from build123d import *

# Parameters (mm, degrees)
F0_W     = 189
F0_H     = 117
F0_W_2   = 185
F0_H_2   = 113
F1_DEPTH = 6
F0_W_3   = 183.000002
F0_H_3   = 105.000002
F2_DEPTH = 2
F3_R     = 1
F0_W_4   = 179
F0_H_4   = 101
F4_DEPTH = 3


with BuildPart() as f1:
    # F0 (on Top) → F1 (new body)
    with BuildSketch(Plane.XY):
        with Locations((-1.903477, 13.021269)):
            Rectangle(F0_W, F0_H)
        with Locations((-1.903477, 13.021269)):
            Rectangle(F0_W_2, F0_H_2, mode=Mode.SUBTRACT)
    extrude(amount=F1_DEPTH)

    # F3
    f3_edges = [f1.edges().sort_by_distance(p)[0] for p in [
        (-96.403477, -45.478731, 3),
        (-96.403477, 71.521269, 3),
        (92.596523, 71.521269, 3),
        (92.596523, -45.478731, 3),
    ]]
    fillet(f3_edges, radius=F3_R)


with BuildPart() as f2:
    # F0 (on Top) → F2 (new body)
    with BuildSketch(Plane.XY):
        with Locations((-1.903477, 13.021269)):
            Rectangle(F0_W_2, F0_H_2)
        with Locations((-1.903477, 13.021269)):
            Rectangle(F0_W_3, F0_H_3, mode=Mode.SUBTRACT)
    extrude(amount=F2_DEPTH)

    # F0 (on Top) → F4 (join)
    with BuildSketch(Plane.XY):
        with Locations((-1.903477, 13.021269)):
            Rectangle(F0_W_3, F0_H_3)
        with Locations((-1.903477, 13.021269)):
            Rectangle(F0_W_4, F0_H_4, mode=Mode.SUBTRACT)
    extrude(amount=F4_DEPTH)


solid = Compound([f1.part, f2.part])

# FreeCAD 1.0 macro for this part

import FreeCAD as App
import Part
import Sketcher


def edges_at(feature, points):
    """Names of the edges that pass closest to the given points."""
    edges = feature.Shape.Edges
    near = lambda p: min(range(len(edges)), key=lambda i: edges[i].distToShape(Part.Vertex(*p))[0])
    return sorted({f"Edge{near(p) + 1}" for p in points})


def add_polygon(sketch, points):
    """Adds a closed chain of lines whose ends are joined by coincident constraints."""
    first, n = sketch.GeometryCount, len(points)
    for a, b in zip(points, points[1:] + points[:1]):
        sketch.addGeometry(Part.LineSegment(App.Vector(*a, 0), App.Vector(*b, 0)), False)
    for i in range(n):
        sketch.addConstraint(Sketcher.Constraint("Coincident", first + i, 2, first + (i + 1) % n, 1))

doc = App.newDocument("Part")
body = doc.addObject("PartDesign::Body", "Body")

# Sketch on XY plane
sketch1 = doc.addObject("Sketcher::SketchObject", "Sketch")
body.addObject(sketch1)
sketch1.AttachmentSupport = (doc.XY_Plane, [""])
sketch1.MapMode = "FlatFace"
add_polygon(sketch1, [(-96, 72), (-96, -45), (93, -45), (93, 72)])  # lines 0-3
add_polygon(sketch1, [(91, -43), (-94, -43), (-94, 70), (91, 70)])  # lines 4-7
sketch1.addConstraint(Sketcher.Constraint("Vertical", 0))
sketch1.addConstraint(Sketcher.Constraint("Horizontal", 1))
sketch1.addConstraint(Sketcher.Constraint("Vertical", 2))
sketch1.addConstraint(Sketcher.Constraint("Horizontal", 3))
sketch1.addConstraint(Sketcher.Constraint("Horizontal", 4))
sketch1.addConstraint(Sketcher.Constraint("Vertical", 5))
sketch1.addConstraint(Sketcher.Constraint("Horizontal", 6))
sketch1.addConstraint(Sketcher.Constraint("Vertical", 7))
sketch1.addConstraint(Sketcher.Constraint("DistanceX", 1, 1, 1, 2, 189.0))
sketch1.addConstraint(Sketcher.Constraint("DistanceX", 4, 2, 4, 1, 185.0))
sketch1.addConstraint(Sketcher.Constraint("DistanceY", 0, 2, 0, 1, 117.0))
sketch1.addConstraint(Sketcher.Constraint("DistanceY", 5, 1, 5, 2, 113.0))
sketch1.addConstraint(Sketcher.Constraint("DistanceX", 0, 2, 4, 2, 2.0))
sketch1.addConstraint(Sketcher.Constraint("DistanceY", 0, 2, 4, 2, 2.0))
sketch1.addConstraint(Sketcher.Constraint("DistanceY", 0, 2, -1, 1, 45.478731))
sketch1.addConstraint(Sketcher.Constraint("DistanceX", 0, 2, -1, 1, 96.403477))
pad1 = doc.addObject("PartDesign::Pad", "Pad")
body.addObject(pad1)
pad1.Profile = sketch1
pad1.Length = 6
doc.recompute()

fillet = doc.addObject("PartDesign::Fillet", "Fillet")
body.addObject(fillet)
fillet.Base = (pad1, edges_at(pad1, [
    (-96.403, -45.479, 3),
    (-96.403, 71.521, 3),
    (92.597, 71.521, 3),
    (92.597, -45.479, 3),
]))
fillet.Radius = 1
body2 = doc.addObject("PartDesign::Body", "Body001")

# Sketch on XY plane
sketch2 = doc.addObject("Sketcher::SketchObject", "Sketch001")
body2.addObject(sketch2)
sketch2.AttachmentSupport = (doc.getObject("XY_Plane001"), [""])
sketch2.MapMode = "FlatFace"
add_polygon(sketch2, [(-94, 70), (-94, -43), (91, -43), (91, 70)])  # lines 0-3
add_polygon(sketch2, [(90, -39), (-93, -39), (-93, 66), (90, 66)])  # lines 4-7
sketch2.addConstraint(Sketcher.Constraint("Vertical", 0))
sketch2.addConstraint(Sketcher.Constraint("Horizontal", 1))
sketch2.addConstraint(Sketcher.Constraint("Vertical", 2))
sketch2.addConstraint(Sketcher.Constraint("Horizontal", 3))
sketch2.addConstraint(Sketcher.Constraint("Horizontal", 4))
sketch2.addConstraint(Sketcher.Constraint("Vertical", 5))
sketch2.addConstraint(Sketcher.Constraint("Horizontal", 6))
sketch2.addConstraint(Sketcher.Constraint("Vertical", 7))
sketch2.addConstraint(Sketcher.Constraint("DistanceX", 1, 1, 1, 2, 185.0))
sketch2.addConstraint(Sketcher.Constraint("DistanceX", 4, 2, 4, 1, 183.000002))
sketch2.addConstraint(Sketcher.Constraint("DistanceY", 0, 2, 0, 1, 113.0))
sketch2.addConstraint(Sketcher.Constraint("DistanceY", 5, 1, 5, 2, 105.000002))
sketch2.addConstraint(Sketcher.Constraint("DistanceX", 0, 2, 4, 2, 0.999999))
sketch2.addConstraint(Sketcher.Constraint("DistanceY", 0, 2, 4, 2, 3.999999))
sketch2.addConstraint(Sketcher.Constraint("DistanceY", 0, 2, -1, 1, 43.478731))
sketch2.addConstraint(Sketcher.Constraint("DistanceX", 4, 2, -1, 1, 93.403478))
pad2 = doc.addObject("PartDesign::Pad", "Pad001")
body2.addObject(pad2)
pad2.Profile = sketch2
pad2.Length = 2

# Sketch on XY plane
sketch3 = doc.addObject("Sketcher::SketchObject", "Sketch002")
body2.addObject(sketch3)
sketch3.AttachmentSupport = (doc.getObject("XY_Plane001"), [""])
sketch3.MapMode = "FlatFace"
add_polygon(sketch3, [(-93, 66), (-93, -39), (90, -39), (90, 66)])  # lines 0-3
add_polygon(sketch3, [(88, -37), (-91, -37), (-91, 64), (88, 64)])  # lines 4-7
sketch3.addConstraint(Sketcher.Constraint("Vertical", 0))
sketch3.addConstraint(Sketcher.Constraint("Horizontal", 1))
sketch3.addConstraint(Sketcher.Constraint("Vertical", 2))
sketch3.addConstraint(Sketcher.Constraint("Horizontal", 3))
sketch3.addConstraint(Sketcher.Constraint("Horizontal", 4))
sketch3.addConstraint(Sketcher.Constraint("Vertical", 5))
sketch3.addConstraint(Sketcher.Constraint("Horizontal", 6))
sketch3.addConstraint(Sketcher.Constraint("Vertical", 7))
sketch3.addConstraint(Sketcher.Constraint("DistanceX", 1, 1, 1, 2, 183.000002))
sketch3.addConstraint(Sketcher.Constraint("DistanceX", 4, 2, 4, 1, 179.0))
sketch3.addConstraint(Sketcher.Constraint("DistanceY", 0, 2, 0, 1, 105.000002))
sketch3.addConstraint(Sketcher.Constraint("DistanceY", 5, 1, 5, 2, 101.0))
sketch3.addConstraint(Sketcher.Constraint("DistanceX", 0, 2, 4, 2, 2.000001))
sketch3.addConstraint(Sketcher.Constraint("DistanceY", 0, 2, 4, 2, 2.000001))
sketch3.addConstraint(Sketcher.Constraint("DistanceX", 0, 2, -1, 1, 93.403478))
sketch3.addConstraint(Sketcher.Constraint("DistanceY", -1, 1, 2, 2, 65.52127))
pad3 = doc.addObject("PartDesign::Pad", "Pad002")
body2.addObject(pad3)
pad3.Profile = sketch3
pad3.Length = 3

doc.recompute()
